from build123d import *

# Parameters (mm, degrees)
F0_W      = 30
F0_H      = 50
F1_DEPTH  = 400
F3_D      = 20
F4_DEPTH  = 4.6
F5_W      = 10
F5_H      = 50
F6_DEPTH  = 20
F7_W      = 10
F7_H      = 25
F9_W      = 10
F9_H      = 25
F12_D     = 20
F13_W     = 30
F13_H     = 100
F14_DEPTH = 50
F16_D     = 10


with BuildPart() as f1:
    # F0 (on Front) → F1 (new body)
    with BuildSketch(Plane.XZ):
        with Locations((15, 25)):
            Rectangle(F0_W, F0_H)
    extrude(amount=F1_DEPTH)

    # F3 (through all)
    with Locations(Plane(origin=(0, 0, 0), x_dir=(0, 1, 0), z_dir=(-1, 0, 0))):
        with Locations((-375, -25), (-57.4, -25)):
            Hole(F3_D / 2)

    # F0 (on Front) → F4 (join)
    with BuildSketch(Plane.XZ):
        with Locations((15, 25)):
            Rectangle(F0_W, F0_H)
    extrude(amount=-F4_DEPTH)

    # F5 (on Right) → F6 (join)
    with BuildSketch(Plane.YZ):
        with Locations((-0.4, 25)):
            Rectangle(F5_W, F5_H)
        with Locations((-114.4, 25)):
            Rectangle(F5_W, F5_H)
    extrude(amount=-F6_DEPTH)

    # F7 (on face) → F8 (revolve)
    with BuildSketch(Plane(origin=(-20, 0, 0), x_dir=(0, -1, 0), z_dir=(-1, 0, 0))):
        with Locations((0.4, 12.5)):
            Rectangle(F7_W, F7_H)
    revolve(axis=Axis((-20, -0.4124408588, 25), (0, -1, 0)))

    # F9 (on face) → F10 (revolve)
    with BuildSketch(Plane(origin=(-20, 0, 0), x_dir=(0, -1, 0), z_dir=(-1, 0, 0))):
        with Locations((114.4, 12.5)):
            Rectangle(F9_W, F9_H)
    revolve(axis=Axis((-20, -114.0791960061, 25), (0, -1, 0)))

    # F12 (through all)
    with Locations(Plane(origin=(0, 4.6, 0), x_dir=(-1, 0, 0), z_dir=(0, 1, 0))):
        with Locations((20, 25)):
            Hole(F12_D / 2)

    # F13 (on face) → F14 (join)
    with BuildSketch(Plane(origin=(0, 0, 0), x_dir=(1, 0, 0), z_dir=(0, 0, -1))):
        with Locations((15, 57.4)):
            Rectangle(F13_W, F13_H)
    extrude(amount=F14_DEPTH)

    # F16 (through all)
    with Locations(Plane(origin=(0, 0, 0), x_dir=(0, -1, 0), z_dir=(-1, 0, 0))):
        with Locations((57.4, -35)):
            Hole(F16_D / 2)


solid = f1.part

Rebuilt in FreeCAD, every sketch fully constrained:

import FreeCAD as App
import Part
import Sketcher
from FreeCAD import Vector
Q = App.Units.Quantity

doc = App.newDocument("Part")
body = doc.addObject("PartDesign::Body", "Body")

sketch1 = body.newObject("Sketcher::SketchObject", "Sketch")
sketch1.AttachmentSupport = (doc.getObject("XZ_Plane"), [""])
sketch1.MapMode = "FlatFace"
sketch1.addGeometry([
    Part.LineSegment(Vector(0, 50, 0), Vector(0, 0, 0)),
    Part.LineSegment(Vector(0, 0, 0), Vector(30, 0, 0)),
    Part.LineSegment(Vector(30, 0, 0), Vector(30, 50, 0)),
    Part.LineSegment(Vector(30, 50, 0), Vector(0, 50, 0)),
], False)
sketch1.addConstraint([
    Sketcher.Constraint("Coincident", 0, 2, 1, 1),
    Sketcher.Constraint("Coincident", 1, 2, 2, 1),
    Sketcher.Constraint("Coincident", 2, 2, 3, 1),
    Sketcher.Constraint("Coincident", 3, 2, 0, 1),
    Sketcher.Constraint("Vertical", 0),
    Sketcher.Constraint("Horizontal", 1),
    Sketcher.Constraint("Vertical", 2),
    Sketcher.Constraint("Horizontal", 3),
    Sketcher.Constraint("Coincident", 0, 2, -1, 1),
    Sketcher.Constraint("DistanceX", 1, 1, 1, 2, Q("30 mm")),
    Sketcher.Constraint("DistanceY", 0, 2, 0, 1, Q("50 mm")),
])
pad1 = body.newObject("PartDesign::Pad", "Pad")
pad1.Profile = sketch1
pad1.Length = 400

sketch2 = body.newObject("Sketcher::SketchObject", "Sketch001")
sketch2.AttachmentSupport = (doc.getObject("YZ_Plane"), [""])
sketch2.MapMode = "FlatFace"
sketch2.addGeometry([
    Part.Circle(Vector(-375, 25, 0), Vector(0, 0, 1), 10),
    Part.Circle(Vector(-57, 25, 0), Vector(0, 0, 1), 10),
], False)
sketch2.addConstraint([
    Sketcher.Constraint("Equal", 0, 1),
    Sketcher.Constraint("Horizontal", 0, 3, 1, 3),
    Sketcher.Constraint("Diameter", 0, Q("20 mm")),
    Sketcher.Constraint("DistanceX", 0, 3, -1, 1, Q("375 mm")),
    Sketcher.Constraint("DistanceY", -1, 1, 0, 3, Q("25 mm")),
    Sketcher.Constraint("DistanceX", 1, 3, -1, 1, Q("57.4 mm")),
])
doc.recompute()
hole = body.newObject("PartDesign::Hole", "Hole")
hole.Profile = sketch2
hole.ThreadType = "None"
hole.Diameter = 20
hole.DepthType = "ThroughAll"
hole.Reversed = True

sketch3 = body.newObject("Sketcher::SketchObject", "Sketch002")
sketch3.AttachmentSupport = (doc.getObject("XZ_Plane"), [""])
sketch3.MapMode = "FlatFace"
sketch3.addGeometry([
    Part.LineSegment(Vector(0, 50, 0), Vector(0, 0, 0)),
    Part.LineSegment(Vector(0, 0, 0), Vector(30, 0, 0)),
    Part.LineSegment(Vector(30, 0, 0), Vector(30, 50, 0)),
    Part.LineSegment(Vector(30, 50, 0), Vector(0, 50, 0)),
], False)
sketch3.addConstraint([
    Sketcher.Constraint("Coincident", 0, 2, 1, 1),
    Sketcher.Constraint("Coincident", 1, 2, 2, 1),
    Sketcher.Constraint("Coincident", 2, 2, 3, 1),
    Sketcher.Constraint("Coincident", 3, 2, 0, 1),
    Sketcher.Constraint("Vertical", 0),
    Sketcher.Constraint("Horizontal", 1),
    Sketcher.Constraint("Vertical", 2),
    Sketcher.Constraint("Horizontal", 3),
    Sketcher.Constraint("Coincident", 0, 2, -1, 1),
    Sketcher.Constraint("DistanceX", 1, 1, 1, 2, Q("30 mm")),
    Sketcher.Constraint("DistanceY", 0, 2, 0, 1, Q("50 mm")),
])
pad2 = body.newObject("PartDesign::Pad", "Pad001")
pad2.Profile = sketch3
pad2.Length = 4.6
pad2.Reversed = True

sketch4 = body.newObject("Sketcher::SketchObject", "Sketch003")
sketch4.AttachmentSupport = (doc.getObject("YZ_Plane"), [""])
sketch4.MapMode = "FlatFace"
sketch4.addGeometry([
    Part.LineSegment(Vector(-5, 50, 0), Vector(-5, 0, 0)),
    Part.LineSegment(Vector(-5, 0, 0), Vector(5, 0, 0)),
    Part.LineSegment(Vector(5, 0, 0), Vector(5, 50, 0)),
    Part.LineSegment(Vector(5, 50, 0), Vector(-5, 50, 0)),
    Part.LineSegment(Vector(-119, 50, 0), Vector(-119, 0, 0)),
    Part.LineSegment(Vector(-119, 0, 0), Vector(-109, 0, 0)),
    Part.LineSegment(Vector(-109, 0, 0), Vector(-109, 50, 0)),
    Part.LineSegment(Vector(-109, 50, 0), Vector(-119, 50, 0)),
], False)
sketch4.addConstraint([
    Sketcher.Constraint("Coincident", 0, 2, 1, 1),
    Sketcher.Constraint("Coincident", 1, 2, 2, 1),
    Sketcher.Constraint("Coincident", 2, 2, 3, 1),
    Sketcher.Constraint("Coincident", 3, 2, 0, 1),
    Sketcher.Constraint("Coincident", 4, 2, 5, 1),
    Sketcher.Constraint("Coincident", 5, 2, 6, 1),
    Sketcher.Constraint("Coincident", 6, 2, 7, 1),
    Sketcher.Constraint("Coincident", 7, 2, 4, 1),
    Sketcher.Constraint("Vertical", 0),
    Sketcher.Constraint("Horizontal", 1),
    Sketcher.Constraint("Vertical", 2),
    Sketcher.Constraint("Horizontal", 3),
    Sketcher.Constraint("Vertical", 4),
    Sketcher.Constraint("Horizontal", 5),
    Sketcher.Constraint("Vertical", 6),
    Sketcher.Constraint("Horizontal", 7),
    Sketcher.Constraint("PointOnObject", 0, 2, -1),
    Sketcher.Constraint("PointOnObject", 4, 2, -1),
    Sketcher.Constraint("Horizontal", 3, 2, 6, 2),
    Sketcher.Constraint("Equal", 3, 5),
    Sketcher.Constraint("DistanceX", 1, 1, 1, 2, Q("10 mm")),
    Sketcher.Constraint("DistanceY", 0, 2, 0, 1, Q("50 mm")),
    Sketcher.Constraint("DistanceX", 4, 2, 0, 2, Q("114 mm")),
    Sketcher.Constraint("DistanceX", 0, 2, -1, 1, Q("5.4 mm")),
])
pad3 = body.newObject("PartDesign::Pad", "Pad002")
pad3.Profile = sketch4
pad3.Length = 20
pad3.Reversed = True

sketch5 = body.newObject("Sketcher::SketchObject", "Sketch004")
sketch5.AttachmentSupport = (doc.getObject("YZ_Plane"), [""])
sketch5.MapMode = "FlatFace"
sketch5.AttachmentOffset = App.Placement(Vector(0, 0, -20), App.Rotation())
sketch5.addGeometry([
    Part.LineSegment(Vector(5, 25, 0), Vector(5, 0, 0)),
    Part.LineSegment(Vector(5, 0, 0), Vector(-5, 0, 0)),
    Part.LineSegment(Vector(-5, 0, 0), Vector(-5, 25, 0)),
    Part.LineSegment(Vector(-5, 25, 0), Vector(5, 25, 0)),
], False)
sketch5.addGeometry(Part.LineSegment(Vector(5, 25, 0), Vector(-5, 25, 0)), True)
sketch5.addConstraint([
    Sketcher.Constraint("Coincident", 0, 2, 1, 1),
    Sketcher.Constraint("Coincident", 1, 2, 2, 1),
    Sketcher.Constraint("Coincident", 2, 2, 3, 1),
    Sketcher.Constraint("Coincident", 3, 2, 0, 1),
    Sketcher.Constraint("Vertical", 0),
    Sketcher.Constraint("Horizontal", 1),
    Sketcher.Constraint("Vertical", 2),
    Sketcher.Constraint("Horizontal", 3),
    Sketcher.Constraint("Horizontal", 4),
    Sketcher.Constraint("Coincident", 4, 1, 3, 2),
    Sketcher.Constraint("PointOnObject", 0, 2, -1),
    Sketcher.Constraint("Vertical", 1, 2, 4, 2),
    Sketcher.Constraint("DistanceX", 1, 2, 1, 1, Q("10 mm")),
    Sketcher.Constraint("DistanceY", 0, 2, 0, 1, Q("25 mm")),
    Sketcher.Constraint("DistanceX", -1, 1, 0, 2, Q("4.6 mm")),
])
revolution = body.newObject("PartDesign::Revolution", "Revolution")
revolution.Profile = sketch5
revolution.ReferenceAxis = (sketch5, ["Axis0"])
revolution.Angle = 360

sketch6 = body.newObject("Sketcher::SketchObject", "Sketch005")
sketch6.AttachmentSupport = (doc.getObject("YZ_Plane"), [""])
sketch6.MapMode = "FlatFace"
sketch6.AttachmentOffset = App.Placement(Vector(0, 0, -20), App.Rotation())
sketch6.addGeometry([
    Part.LineSegment(Vector(-109, 25, 0), Vector(-109, 0, 0)),
    Part.LineSegment(Vector(-109, 0, 0), Vector(-119, 0, 0)),
    Part.LineSegment(Vector(-119, 0, 0), Vector(-119, 25, 0)),
    Part.LineSegment(Vector(-119, 25, 0), Vector(-109, 25, 0)),
], False)
sketch6.addGeometry(Part.LineSegment(Vector(-109, 25, 0), Vector(-119, 25, 0)), True)
sketch6.addConstraint([
    Sketcher.Constraint("Coincident", 0, 2, 1, 1),
    Sketcher.Constraint("Coincident", 1, 2, 2, 1),
    Sketcher.Constraint("Coincident", 2, 2, 3, 1),
    Sketcher.Constraint("Coincident", 3, 2, 0, 1),
    Sketcher.Constraint("Vertical", 0),
    Sketcher.Constraint("Horizontal", 1),
    Sketcher.Constraint("Vertical", 2),
    Sketcher.Constraint("Horizontal", 3),
    Sketcher.Constraint("Horizontal", 4),
    Sketcher.Constraint("Coincident", 4, 1, 3, 2),
    Sketcher.Constraint("PointOnObject", 0, 2, -1),
    Sketcher.Constraint("Vertical", 1, 2, 4, 2),
    Sketcher.Constraint("DistanceX", 1, 2, 1, 1, Q("10 mm")),
    Sketcher.Constraint("DistanceY", 0, 2, 0, 1, Q("25 mm")),
    Sketcher.Constraint("DistanceX", 0, 2, -1, 1, Q("109.4 mm")),
])
revolution2 = body.newObject("PartDesign::Revolution", "Revolution001")
revolution2.Profile = sketch6
revolution2.ReferenceAxis = (sketch6, ["Axis0"])
revolution2.Angle = 360

sketch7 = body.newObject("Sketcher::SketchObject", "Sketch006")
sketch7.AttachmentSupport = (doc.getObject("XZ_Plane"), [""])
sketch7.MapMode = "FlatFace"
sketch7.AttachmentOffset = App.Placement(Vector(0, 0, -4.6), App.Rotation())
sketch7.addGeometry(Part.Circle(Vector(-20, 25, 0), Vector(0, 0, 1), 10), False)
sketch7.addConstraint([
    Sketcher.Constraint("Diameter", 0, Q("20 mm")),
    Sketcher.Constraint("DistanceX", 0, 3, -1, 1, Q("20 mm")),
    Sketcher.Constraint("DistanceY", -1, 1, 0, 3, Q("25 mm")),
])
doc.recompute()
hole2 = body.newObject("PartDesign::Hole", "Hole001")
hole2.Profile = sketch7
hole2.ThreadType = "None"
hole2.Diameter = 20
hole2.DepthType = "ThroughAll"
hole2.Reversed = True

sketch8 = body.newObject("Sketcher::SketchObject", "Sketch007")
sketch8.AttachmentSupport = (doc.getObject("XY_Plane"), [""])
sketch8.MapMode = "FlatFace"
sketch8.addGeometry([
    Part.LineSegment(Vector(0, -107, 0), Vector(0, -7, 0)),
    Part.LineSegment(Vector(0, -7, 0), Vector(30, -7, 0)),
    Part.LineSegment(Vector(30, -7, 0), Vector(30, -107, 0)),
    Part.LineSegment(Vector(30, -107, 0), Vector(0, -107, 0)),
], False)
sketch8.addConstraint([
    Sketcher.Constraint("Coincident", 0, 2, 1, 1),
    Sketcher.Constraint("Coincident", 1, 2, 2, 1),
    Sketcher.Constraint("Coincident", 2, 2, 3, 1),
    Sketcher.Constraint("Coincident", 3, 2, 0, 1),
    Sketcher.Constraint("Vertical", 0),
    Sketcher.Constraint("Horizontal", 1),
    Sketcher.Constraint("Vertical", 2),
    Sketcher.Constraint("Horizontal", 3),
    Sketcher.Constraint("PointOnObject", 0, 2, -2),
    Sketcher.Constraint("DistanceX", 1, 1, 1, 2, Q("30 mm")),
    Sketcher.Constraint("DistanceY", 0, 1, 0, 2, Q("100 mm")),
    Sketcher.Constraint("DistanceY", 0, 2, -1, 1, Q("7.4 mm")),
])
pad4 = body.newObject("PartDesign::Pad", "Pad003")
pad4.Profile = sketch8
pad4.Length = 50
pad4.Reversed = True

sketch9 = body.newObject("Sketcher::SketchObject", "Sketch008")
sketch9.AttachmentSupport = (doc.getObject("YZ_Plane"), [""])
sketch9.MapMode = "FlatFace"
sketch9.addGeometry(Part.Circle(Vector(-57, -35, 0), Vector(0, 0, 1), 5), False)
sketch9.addConstraint([
    Sketcher.Constraint("Diameter", 0, Q("10 mm")),
    Sketcher.Constraint("DistanceY", 0, 3, -1, 1, Q("35 mm")),
    Sketcher.Constraint("DistanceX", 0, 3, -1, 1, Q("57.4 mm")),
])
doc.recompute()
hole3 = body.newObject("PartDesign::Hole", "Hole002")
hole3.Profile = sketch9
hole3.ThreadType = "None"
hole3.Diameter = 10
hole3.DepthType = "ThroughAll"
hole3.Reversed = True

doc.recompute()
